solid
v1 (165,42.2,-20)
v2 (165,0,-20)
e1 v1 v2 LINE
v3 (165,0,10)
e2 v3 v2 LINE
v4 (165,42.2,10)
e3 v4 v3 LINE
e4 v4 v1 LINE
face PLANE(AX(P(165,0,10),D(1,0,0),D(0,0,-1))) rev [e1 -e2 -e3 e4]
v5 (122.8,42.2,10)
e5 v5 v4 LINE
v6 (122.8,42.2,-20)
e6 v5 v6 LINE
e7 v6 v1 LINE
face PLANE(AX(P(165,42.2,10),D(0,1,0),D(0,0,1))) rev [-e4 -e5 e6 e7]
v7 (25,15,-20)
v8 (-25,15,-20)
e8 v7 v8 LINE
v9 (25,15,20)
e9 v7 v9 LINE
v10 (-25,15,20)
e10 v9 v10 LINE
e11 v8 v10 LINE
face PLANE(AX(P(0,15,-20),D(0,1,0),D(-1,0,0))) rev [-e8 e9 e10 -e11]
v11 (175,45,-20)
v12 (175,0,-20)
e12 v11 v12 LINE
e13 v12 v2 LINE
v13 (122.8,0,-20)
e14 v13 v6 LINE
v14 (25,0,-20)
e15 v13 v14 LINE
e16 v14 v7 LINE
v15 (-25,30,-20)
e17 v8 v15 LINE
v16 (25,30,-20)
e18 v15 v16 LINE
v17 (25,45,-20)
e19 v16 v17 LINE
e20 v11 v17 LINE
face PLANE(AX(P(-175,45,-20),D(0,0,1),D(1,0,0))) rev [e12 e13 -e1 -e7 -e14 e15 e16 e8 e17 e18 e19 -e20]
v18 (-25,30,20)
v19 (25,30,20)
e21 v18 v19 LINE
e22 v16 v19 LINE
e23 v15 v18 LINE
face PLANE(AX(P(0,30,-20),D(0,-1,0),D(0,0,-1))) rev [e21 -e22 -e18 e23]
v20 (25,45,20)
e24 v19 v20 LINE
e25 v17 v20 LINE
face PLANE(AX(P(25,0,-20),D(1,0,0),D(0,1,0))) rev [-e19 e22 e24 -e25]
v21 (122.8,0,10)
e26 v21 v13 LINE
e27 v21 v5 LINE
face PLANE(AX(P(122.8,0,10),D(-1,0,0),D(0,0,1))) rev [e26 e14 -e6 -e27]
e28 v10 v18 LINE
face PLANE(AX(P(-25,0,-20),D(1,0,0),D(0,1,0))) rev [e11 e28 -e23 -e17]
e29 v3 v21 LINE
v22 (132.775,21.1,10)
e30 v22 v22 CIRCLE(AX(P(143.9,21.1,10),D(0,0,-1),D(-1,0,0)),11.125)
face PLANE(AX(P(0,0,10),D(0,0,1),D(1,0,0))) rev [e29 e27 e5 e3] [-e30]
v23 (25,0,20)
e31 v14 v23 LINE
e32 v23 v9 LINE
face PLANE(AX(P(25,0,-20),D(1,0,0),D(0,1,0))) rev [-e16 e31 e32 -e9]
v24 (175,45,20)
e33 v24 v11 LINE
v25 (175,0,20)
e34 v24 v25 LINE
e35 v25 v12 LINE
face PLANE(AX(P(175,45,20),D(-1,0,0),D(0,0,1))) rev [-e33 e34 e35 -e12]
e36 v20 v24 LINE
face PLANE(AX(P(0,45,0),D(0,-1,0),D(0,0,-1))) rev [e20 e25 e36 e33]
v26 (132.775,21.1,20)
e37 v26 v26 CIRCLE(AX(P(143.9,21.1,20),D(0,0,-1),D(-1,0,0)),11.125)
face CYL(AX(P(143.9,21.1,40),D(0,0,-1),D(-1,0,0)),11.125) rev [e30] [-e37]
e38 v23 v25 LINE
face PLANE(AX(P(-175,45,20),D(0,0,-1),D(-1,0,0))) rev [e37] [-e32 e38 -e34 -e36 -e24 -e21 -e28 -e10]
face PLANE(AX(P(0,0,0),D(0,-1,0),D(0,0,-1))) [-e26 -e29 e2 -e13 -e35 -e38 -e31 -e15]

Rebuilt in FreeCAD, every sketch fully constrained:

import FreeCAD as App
import Part
import Sketcher
from FreeCAD import Vector
Q = App.Units.Quantity

doc = App.newDocument("Part")
body = doc.addObject("PartDesign::Body", "Body")

# Sketch on XZ plane
sketch1 = doc.addObject("Sketcher::SketchObject", "Sketch")
body.addObject(sketch1)
sketch1.AttachmentSupport = (doc.XZ_Plane, [""])
sketch1.MapMode = "FlatFace"
sketch1.addGeometry(Part.LineSegment(Vector(-175, -20, 0), Vector(-175, 20, 0)), False)
sketch1.addGeometry(Part.LineSegment(Vector(-175, 20, 0), Vector(175, 20, 0)), False)
sketch1.addGeometry(Part.LineSegment(Vector(175, 20, 0), Vector(175, -20, 0)), False)
sketch1.addGeometry(Part.LineSegment(Vector(175, -20, 0), Vector(-175, -20, 0)), False)
sketch1.addConstraint(Sketcher.Constraint("Coincident", 0, 2, 1, 1))
sketch1.addConstraint(Sketcher.Constraint("Coincident", 1, 2, 2, 1))
sketch1.addConstraint(Sketcher.Constraint("Coincident", 2, 2, 3, 1))
sketch1.addConstraint(Sketcher.Constraint("Coincident", 3, 2, 0, 1))
sketch1.addConstraint(Sketcher.Constraint("Vertical", 0))
sketch1.addConstraint(Sketcher.Constraint("Horizontal", 1))
sketch1.addConstraint(Sketcher.Constraint("Vertical", 2))
sketch1.addConstraint(Sketcher.Constraint("Horizontal", 3))
sketch1.addConstraint(Sketcher.Constraint("Symmetric", 0, 2, 2, 2, -1, 1))
sketch1.addConstraint(Sketcher.Constraint("DistanceX", 1, 1, 1, 2, Q("350 mm")))
sketch1.addConstraint(Sketcher.Constraint("DistanceY", 0, 1, 0, 2, Q("40 mm")))
pad1 = doc.addObject("PartDesign::Pad", "Pad")
body.addObject(pad1)
pad1.Profile = sketch1
pad1.Length = 45
pad1.Reversed = True

# Sketch on XY plane
sketch2 = doc.addObject("Sketcher::SketchObject", "Sketch001")
body.addObject(sketch2)
sketch2.AttachmentSupport = (doc.XY_Plane, [""])
sketch2.MapMode = "FlatFace"
sketch2.AttachmentOffset = App.Placement(Vector(0, 0, -20), App.Rotation())
sketch2.addGeometry(Part.LineSegment(Vector(165, 42, 0), Vector(165, 0, 0)), False)
sketch2.addGeometry(Part.LineSegment(Vector(165, 0, 0), Vector(123, 0, 0)), False)
sketch2.addGeometry(Part.LineSegment(Vector(123, 0, 0), Vector(123, 42, 0)), False)
sketch2.addGeometry(Part.LineSegment(Vector(123, 42, 0), Vector(165, 42, 0)), False)
sketch2.addConstraint(Sketcher.Constraint("Coincident", 0, 2, 1, 1))
sketch2.addConstraint(Sketcher.Constraint("Coincident", 1, 2, 2, 1))
sketch2.addConstraint(Sketcher.Constraint("Coincident", 2, 2, 3, 1))
sketch2.addConstraint(Sketcher.Constraint("Coincident", 3, 2, 0, 1))
sketch2.addConstraint(Sketcher.Constraint("Vertical", 0))
sketch2.addConstraint(Sketcher.Constraint("Horizontal", 1))
sketch2.addConstraint(Sketcher.Constraint("Vertical", 2))
sketch2.addConstraint(Sketcher.Constraint("Horizontal", 3))
sketch2.addConstraint(Sketcher.Constraint("PointOnObject", 0, 2, -1))
sketch2.addConstraint(Sketcher.Constraint("Equal", 3, 0))
sketch2.addConstraint(Sketcher.Constraint("DistanceX", 1, 2, 1, 1, Q("42.2 mm")))
sketch2.addConstraint(Sketcher.Constraint("DistanceX", -1, 1, 0, 2, Q("165 mm")))
pocket1 = doc.addObject("PartDesign::Pocket", "Pocket")
body.addObject(pocket1)
pocket1.Profile = sketch2
pocket1.Length = 30
pocket1.Reversed = True

# Sketch on XY plane
sketch3 = doc.addObject("Sketcher::SketchObject", "Sketch002")
body.addObject(sketch3)
sketch3.AttachmentSupport = (doc.XY_Plane, [""])
sketch3.MapMode = "FlatFace"
sketch3.AttachmentOffset = App.Placement(Vector(0, 0, 10), App.Rotation())
sketch3.addGeometry(Part.Circle(Vector(144, 21, 0), Vector(0, 0, 1), 11), False)
sketch3.addConstraint(Sketcher.Constraint("Diameter", 0, Q("22.25 mm")))
sketch3.addConstraint(Sketcher.Constraint("DistanceX", -1, 1, 0, 3, Q("143.9 mm")))
sketch3.addConstraint(Sketcher.Constraint("DistanceY", -1, 1, 0, 3, Q("21.1 mm")))
pocket2 = doc.addObject("PartDesign::Pocket", "Pocket001")
body.addObject(pocket2)
pocket2.Profile = sketch3
pocket2.Length = 30
pocket2.Reversed = True
doc.recompute()

mirrored = doc.addObject("PartDesign::Mirrored", "Mirrored")
body.addObject(mirrored)
mirrored.Originals = [pocket1, pocket2]
mirrored.MirrorPlane = (doc.YZ_Plane, [""])
body.Tip = mirrored

# Sketch on XY plane
sketch4 = doc.addObject("Sketcher::SketchObject", "Sketch003")
body.addObject(sketch4)
sketch4.AttachmentSupport = (doc.XY_Plane, [""])
sketch4.MapMode = "FlatFace"
sketch4.AttachmentOffset = App.Placement(Vector(0, 0, 20), App.Rotation())
sketch4.addGeometry(Part.LineSegment(Vector(-175, 0, 0), Vector(25, 0, 0)), False)
sketch4.addGeometry(Part.LineSegment(Vector(25, 0, 0), Vector(25, 15, 0)), False)
sketch4.addGeometry(Part.LineSegment(Vector(25, 15, 0), Vector(-25, 15, 0)), False)
sketch4.addGeometry(Part.LineSegment(Vector(-25, 15, 0), Vector(-25, 30, 0)), False)
sketch4.addGeometry(Part.LineSegment(Vector(-25, 30, 0), Vector(25, 30, 0)), False)
sketch4.addGeometry(Part.LineSegment(Vector(25, 30, 0), Vector(25, 45, 0)), False)
sketch4.addGeometry(Part.LineSegment(Vector(25, 45, 0), Vector(-175, 45, 0)), False)
sketch4.addGeometry(Part.LineSegment(Vector(-175, 45, 0), Vector(-175, 0, 0)), False)
sketch4.addGeometry(Part.Circle(Vector(-144, 21, 0), Vector(0, 0, 1), 11), False)
sketch4.addConstraint(Sketcher.Constraint("Coincident", 0, 2, 1, 1))
sketch4.addConstraint(Sketcher.Constraint("Coincident", 1, 2, 2, 1))
sketch4.addConstraint(Sketcher.Constraint("Coincident", 2, 2, 3, 1))
sketch4.addConstraint(Sketcher.Constraint("Coincident", 3, 2, 4, 1))
sketch4.addConstraint(Sketcher.Constraint("Coincident", 4, 2, 5, 1))
sketch4.addConstraint(Sketcher.Constraint("Coincident", 5, 2, 6, 1))
sketch4.addConstraint(Sketcher.Constraint("Coincident", 6, 2, 7, 1))
sketch4.addConstraint(Sketcher.Constraint("Coincident", 7, 2, 0, 1))
sketch4.addConstraint(Sketcher.Constraint("Horizontal", 0))
sketch4.addConstraint(Sketcher.Constraint("Vertical", 1))
sketch4.addConstraint(Sketcher.Constraint("Horizontal", 2))
sketch4.addConstraint(Sketcher.Constraint("Vertical", 3))
sketch4.addConstraint(Sketcher.Constraint("Horizontal", 4))
sketch4.addConstraint(Sketcher.Constraint("Vertical", 5))
sketch4.addConstraint(Sketcher.Constraint("Horizontal", 6))
sketch4.addConstraint(Sketcher.Constraint("Vertical", 7))
sketch4.addConstraint(Sketcher.Constraint("PointOnObject", 0, 2, -1))
sketch4.addConstraint(Sketcher.Constraint("Vertical", 1, 2, 4, 2))
sketch4.addConstraint(Sketcher.Constraint("Equal", 1, 3))
sketch4.addConstraint(Sketcher.Constraint("Equal", 3, 5))
sketch4.addConstraint(Sketcher.Constraint("Diameter", 8, Q("22.25 mm")))
sketch4.addConstraint(Sketcher.Constraint("DistanceX", 0, 1, 0, 2, Q("200 mm")))
sketch4.addConstraint(Sketcher.Constraint("DistanceX", 2, 2, 2, 1, Q("50 mm")))
sketch4.addConstraint(Sketcher.Constraint("DistanceY", 1, 1, 1, 2, Q("15 mm")))
sketch4.addConstraint(Sketcher.Constraint("DistanceX", -1, 1, 0, 2, Q("25 mm")))
sketch4.addConstraint(Sketcher.Constraint("DistanceX", 8, 3, -1, 1, Q("143.9 mm")))
sketch4.addConstraint(Sketcher.Constraint("DistanceY", -1, 1, 8, 3, Q("21.1 mm")))
pocket3 = doc.addObject("PartDesign::Pocket", "Pocket002")
body.addObject(pocket3)
pocket3.Profile = sketch4
pocket3.Type = "ThroughAll"

doc.recompute()
